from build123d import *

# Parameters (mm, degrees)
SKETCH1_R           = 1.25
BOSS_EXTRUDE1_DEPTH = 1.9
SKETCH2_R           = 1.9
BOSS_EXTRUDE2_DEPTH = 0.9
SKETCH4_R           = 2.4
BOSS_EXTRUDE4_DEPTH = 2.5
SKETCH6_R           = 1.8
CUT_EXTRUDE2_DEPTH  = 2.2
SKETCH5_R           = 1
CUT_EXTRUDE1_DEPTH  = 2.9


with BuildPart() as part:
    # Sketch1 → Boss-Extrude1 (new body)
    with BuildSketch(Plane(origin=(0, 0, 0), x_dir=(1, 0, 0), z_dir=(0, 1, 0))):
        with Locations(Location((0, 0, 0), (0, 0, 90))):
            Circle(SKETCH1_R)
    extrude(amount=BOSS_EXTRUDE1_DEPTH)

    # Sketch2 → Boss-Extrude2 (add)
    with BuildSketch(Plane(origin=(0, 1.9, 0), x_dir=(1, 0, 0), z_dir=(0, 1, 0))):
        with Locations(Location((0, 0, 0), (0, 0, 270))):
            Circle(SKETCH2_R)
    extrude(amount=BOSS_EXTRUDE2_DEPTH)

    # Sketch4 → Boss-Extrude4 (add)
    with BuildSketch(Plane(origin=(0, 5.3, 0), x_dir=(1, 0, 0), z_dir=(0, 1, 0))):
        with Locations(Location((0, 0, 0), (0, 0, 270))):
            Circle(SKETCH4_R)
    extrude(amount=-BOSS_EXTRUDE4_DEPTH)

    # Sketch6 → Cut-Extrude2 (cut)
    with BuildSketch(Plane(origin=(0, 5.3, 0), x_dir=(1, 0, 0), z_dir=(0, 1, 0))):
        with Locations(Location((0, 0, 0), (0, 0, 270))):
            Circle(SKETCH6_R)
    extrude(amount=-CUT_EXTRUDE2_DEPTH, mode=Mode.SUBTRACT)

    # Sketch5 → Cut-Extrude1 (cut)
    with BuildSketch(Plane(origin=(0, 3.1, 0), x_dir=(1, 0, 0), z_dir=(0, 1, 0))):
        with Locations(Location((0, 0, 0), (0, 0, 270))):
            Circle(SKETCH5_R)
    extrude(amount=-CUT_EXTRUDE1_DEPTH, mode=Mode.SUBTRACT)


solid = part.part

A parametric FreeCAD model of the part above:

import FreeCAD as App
import Part
import Sketcher

V = App.Vector
Q = App.Units.Quantity

doc = App.newDocument("Part")
body = doc.addObject("PartDesign::Body", "Body")

sketch1 = body.newObject("Sketcher::SketchObject", "Sketch")
sketch1.AttachmentSupport = (doc.getObject("XZ_Plane"), [""])
sketch1.MapMode = "FlatFace"
sketch1.addGeometry(Part.Circle(V(0, 0, 0), V(0, 0, 1), 1.25), False)
sketch1.addConstraint(Sketcher.Constraint("Coincident", 0, 3, -1, 1))
sketch1.addConstraint(Sketcher.Constraint("Diameter", 0, Q("2.5 mm")))
pad1 = body.newObject("PartDesign::Pad", "Pad")
pad1.Profile = sketch1
pad1.Length = 1.9
pad1.Reversed = True

sketch2 = body.newObject("Sketcher::SketchObject", "Sketch001")
sketch2.AttachmentSupport = (doc.getObject("XZ_Plane"), [""])
sketch2.MapMode = "FlatFace"
sketch2.AttachmentOffset = App.Placement(V(0, 0, -1.9), App.Rotation())
sketch2.addGeometry(Part.Circle(V(0, 0, 0), V(0, 0, 1), 1.9), False)
sketch2.addConstraint(Sketcher.Constraint("Coincident", 0, 3, -1, 1))
sketch2.addConstraint(Sketcher.Constraint("Diameter", 0, Q("3.8 mm")))
pad2 = body.newObject("PartDesign::Pad", "Pad001")
pad2.Profile = sketch2
pad2.Length = 0.9
pad2.Reversed = True

sketch3 = body.newObject("Sketcher::SketchObject", "Sketch002")
sketch3.AttachmentSupport = (doc.getObject("XZ_Plane"), [""])
sketch3.MapMode = "FlatFace"
sketch3.AttachmentOffset = App.Placement(V(0, 0, -5.3), App.Rotation())
sketch3.addGeometry(Part.Circle(V(0, 0, 0), V(0, 0, 1), 2.4), False)
sketch3.addConstraint(Sketcher.Constraint("Coincident", 0, 3, -1, 1))
sketch3.addConstraint(Sketcher.Constraint("Diameter", 0, Q("4.8 mm")))
pad3 = body.newObject("PartDesign::Pad", "Pad002")
pad3.Profile = sketch3
pad3.Length = 2.5

sketch4 = body.newObject("Sketcher::SketchObject", "Sketch003")
sketch4.AttachmentSupport = (doc.getObject("XZ_Plane"), [""])
sketch4.MapMode = "FlatFace"
sketch4.AttachmentOffset = App.Placement(V(0, 0, -5.3), App.Rotation())
sketch4.addGeometry(Part.Circle(V(0, 0, 0), V(0, 0, 1), 1.8), False)
sketch4.addConstraint(Sketcher.Constraint("Coincident", 0, 3, -1, 1))
sketch4.addConstraint(Sketcher.Constraint("Diameter", 0, Q("3.6 mm")))
pocket1 = body.newObject("PartDesign::Pocket", "Pocket")
pocket1.Profile = sketch4
pocket1.Length = 2.2
pocket1.Reversed = True

sketch5 = body.newObject("Sketcher::SketchObject", "Sketch004")
sketch5.AttachmentSupport = (doc.getObject("XZ_Plane"), [""])
sketch5.MapMode = "FlatFace"
sketch5.AttachmentOffset = App.Placement(V(0, 0, -3.1), App.Rotation())
sketch5.addGeometry(Part.Circle(V(0, 0, 0), V(0, 0, 1), 1), False)
sketch5.addConstraint(Sketcher.Constraint("Coincident", 0, 3, -1, 1))
sketch5.addConstraint(Sketcher.Constraint("Diameter", 0, Q("2 mm")))
pocket2 = body.newObject("PartDesign::Pocket", "Pocket001")
pocket2.Profile = sketch5
pocket2.Length = 2.9
pocket2.Reversed = True

doc.recompute()
